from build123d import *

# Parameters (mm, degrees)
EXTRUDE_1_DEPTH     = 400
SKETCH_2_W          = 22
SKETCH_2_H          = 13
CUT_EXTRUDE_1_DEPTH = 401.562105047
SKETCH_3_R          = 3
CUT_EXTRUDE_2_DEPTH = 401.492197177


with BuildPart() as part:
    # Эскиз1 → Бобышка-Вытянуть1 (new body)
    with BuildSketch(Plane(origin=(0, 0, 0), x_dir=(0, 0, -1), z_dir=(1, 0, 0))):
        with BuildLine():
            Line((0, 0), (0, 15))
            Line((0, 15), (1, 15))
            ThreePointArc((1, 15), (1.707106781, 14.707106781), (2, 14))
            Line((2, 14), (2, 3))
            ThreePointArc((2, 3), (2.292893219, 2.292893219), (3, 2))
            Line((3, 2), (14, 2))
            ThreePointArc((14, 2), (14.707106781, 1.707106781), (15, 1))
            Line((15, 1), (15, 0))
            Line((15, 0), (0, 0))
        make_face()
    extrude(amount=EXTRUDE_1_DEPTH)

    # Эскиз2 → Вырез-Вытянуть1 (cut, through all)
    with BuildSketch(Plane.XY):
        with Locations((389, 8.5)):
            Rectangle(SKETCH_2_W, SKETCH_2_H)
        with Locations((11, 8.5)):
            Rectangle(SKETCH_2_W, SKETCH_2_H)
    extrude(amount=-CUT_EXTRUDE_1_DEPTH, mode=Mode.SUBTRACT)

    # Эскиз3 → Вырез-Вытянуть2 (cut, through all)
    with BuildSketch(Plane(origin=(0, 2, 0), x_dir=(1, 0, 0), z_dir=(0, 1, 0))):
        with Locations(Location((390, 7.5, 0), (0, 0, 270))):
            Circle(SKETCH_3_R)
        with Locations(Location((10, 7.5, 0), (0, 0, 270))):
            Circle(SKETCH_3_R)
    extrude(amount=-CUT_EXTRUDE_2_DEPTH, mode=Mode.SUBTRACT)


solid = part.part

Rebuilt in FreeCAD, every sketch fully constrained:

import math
import FreeCAD as App
import Part
import Sketcher

V = App.Vector

doc = App.newDocument("Part")
params = doc.addObject("Spreadsheet::Sheet", "Params")
for row, (alias, value) in enumerate([
    ("sketch1_radius", "1 mm"),
    ("sketch1_width", "15 mm"),
    ("sketch1_width2", "1 mm"),
    ("pad1_length", "400 mm"),
    ("sketch2_width", "22 mm"),
    ("sketch2_height", "13 mm"),
    ("sketch3_diameter", "6 mm"),
], start=1):
    params.set(f"A{row}", alias)
    params.set(f"B{row}", "=" + value)
    params.setAlias(f"B{row}", alias)

body = doc.addObject("PartDesign::Body", "Body")

sketch1 = body.newObject("Sketcher::SketchObject", "Sketch")
sketch1.AttachmentSupport = (doc.getObject("YZ_Plane"), [""])
sketch1.MapMode = "FlatFace"
sketch1.addGeometry(Part.LineSegment(V(15, 0, 0), V(0, 0, 0)), False)
sketch1.addGeometry(Part.LineSegment(V(0, 0, 0), V(0, -15, 0)), False)
sketch1.addGeometry(Part.LineSegment(V(0, -15, 0), V(1, -15, 0)), False)
sketch1.addGeometry(Part.ArcOfCircle(Part.Circle(V(1, -14, 0), V(0, 0, 1), 1), math.radians(-90), math.radians(0)), False)
sketch1.addGeometry(Part.LineSegment(V(2, -14, 0), V(2, -3, 0)), False)
sketch1.addGeometry(Part.ArcOfCircle(Part.Circle(V(3, -3, 0), V(0, 0, 1), 1), math.radians(90), math.radians(180)), False)
sketch1.addGeometry(Part.LineSegment(V(3, -2, 0), V(14, -2, 0)), False)
sketch1.addGeometry(Part.ArcOfCircle(Part.Circle(V(14, -1, 0), V(0, 0, 1), 1), math.radians(-90), math.radians(0)), False)
sketch1.addGeometry(Part.LineSegment(V(15, -1, 0), V(15, 0, 0)), False)
sketch1.addConstraint(Sketcher.Constraint("Coincident", 0, 2, 1, 1))
sketch1.addConstraint(Sketcher.Constraint("Coincident", 1, 2, 2, 1))
sketch1.addConstraint(Sketcher.Constraint("Tangent", 2, 2, 3, 1))
sketch1.addConstraint(Sketcher.Constraint("Tangent", 3, 2, 4, 1))
sketch1.addConstraint(Sketcher.Constraint("Tangent", 4, 2, 5, 2))
sketch1.addConstraint(Sketcher.Constraint("Tangent", 5, 1, 6, 1))
sketch1.addConstraint(Sketcher.Constraint("Tangent", 6, 2, 7, 1))
sketch1.addConstraint(Sketcher.Constraint("Tangent", 7, 2, 8, 1))
sketch1.addConstraint(Sketcher.Constraint("Coincident", 8, 2, 0, 1))
sketch1.addConstraint(Sketcher.Constraint("Horizontal", 0))
sketch1.addConstraint(Sketcher.Constraint("Vertical", 1))
sketch1.addConstraint(Sketcher.Constraint("Horizontal", 2))
sketch1.addConstraint(Sketcher.Constraint("Vertical", 4))
sketch1.addConstraint(Sketcher.Constraint("Horizontal", 6))
sketch1.addConstraint(Sketcher.Constraint("Vertical", 8))
sketch1.addConstraint(Sketcher.Constraint("Coincident", 0, 2, -1, 1))
sketch1.addConstraint(Sketcher.Constraint("Equal", 3, 5))
sketch1.addConstraint(Sketcher.Constraint("Equal", 5, 7))
sketch1.addConstraint(Sketcher.Constraint("Equal", 0, 1))
sketch1.addConstraint(Sketcher.Constraint("Equal", 6, 4))
sketch1.addConstraint(Sketcher.Constraint("Radius", 3, 1.0))
sketch1.addConstraint(Sketcher.Constraint("DistanceX", 0, 2, 0, 1, 15.0))
sketch1.addConstraint(Sketcher.Constraint("DistanceX", 2, 1, 2, 2, 1.0))
sketch1.setExpression("Constraints[20]", "Params.sketch1_radius")
sketch1.setExpression("Constraints[21]", "Params.sketch1_width")
sketch1.setExpression("Constraints[22]", "Params.sketch1_width2")
pad1 = body.newObject("PartDesign::Pad", "Pad")
pad1.Profile = sketch1
pad1.setExpression("Length", "Params.pad1_length")

sketch2 = body.newObject("Sketcher::SketchObject", "Sketch001")
sketch2.AttachmentSupport = (doc.getObject("XY_Plane"), [""])
sketch2.MapMode = "FlatFace"
sketch2.addGeometry(Part.LineSegment(V(378, 15, 0), V(378, 2, 0)), False)
sketch2.addGeometry(Part.LineSegment(V(378, 2, 0), V(400, 2, 0)), False)
sketch2.addGeometry(Part.LineSegment(V(400, 2, 0), V(400, 15, 0)), False)
sketch2.addGeometry(Part.LineSegment(V(400, 15, 0), V(378, 15, 0)), False)
sketch2.addGeometry(Part.LineSegment(V(0, 15, 0), V(0, 2, 0)), False)
sketch2.addGeometry(Part.LineSegment(V(0, 2, 0), V(22, 2, 0)), False)
sketch2.addGeometry(Part.LineSegment(V(22, 2, 0), V(22, 15, 0)), False)
sketch2.addGeometry(Part.LineSegment(V(22, 15, 0), V(0, 15, 0)), False)
sketch2.addConstraint(Sketcher.Constraint("Coincident", 0, 2, 1, 1))
sketch2.addConstraint(Sketcher.Constraint("Coincident", 1, 2, 2, 1))
sketch2.addConstraint(Sketcher.Constraint("Coincident", 2, 2, 3, 1))
sketch2.addConstraint(Sketcher.Constraint("Coincident", 3, 2, 0, 1))
sketch2.addConstraint(Sketcher.Constraint("Coincident", 4, 2, 5, 1))
sketch2.addConstraint(Sketcher.Constraint("Coincident", 5, 2, 6, 1))
sketch2.addConstraint(Sketcher.Constraint("Coincident", 6, 2, 7, 1))
sketch2.addConstraint(Sketcher.Constraint("Coincident", 7, 2, 4, 1))
sketch2.addConstraint(Sketcher.Constraint("Vertical", 0))
sketch2.addConstraint(Sketcher.Constraint("Horizontal", 1))
sketch2.addConstraint(Sketcher.Constraint("Vertical", 2))
sketch2.addConstraint(Sketcher.Constraint("Horizontal", 3))
sketch2.addConstraint(Sketcher.Constraint("Vertical", 4))
sketch2.addConstraint(Sketcher.Constraint("Horizontal", 5))
sketch2.addConstraint(Sketcher.Constraint("Vertical", 6))
sketch2.addConstraint(Sketcher.Constraint("Horizontal", 7))
sketch2.addConstraint(Sketcher.Constraint("PointOnObject", 4, 2, -2))
sketch2.addConstraint(Sketcher.Constraint("Horizontal", 1, 2, 4, 2))
sketch2.addConstraint(Sketcher.Constraint("Horizontal", 3, 2, 6, 2))
sketch2.addConstraint(Sketcher.Constraint("Equal", 3, 5))
sketch2.addConstraint(Sketcher.Constraint("DistanceX", 1, 1, 1, 2, 22.0))
sketch2.addConstraint(Sketcher.Constraint("DistanceY", 0, 2, 0, 1, 13.0))
sketch2.addConstraint(Sketcher.Constraint("DistanceX", -1, 1, 0, 2, 378.0))
sketch2.addConstraint(Sketcher.Constraint("DistanceY", -1, 1, 0, 2, 2.0))
sketch2.setExpression("Constraints[20]", "Params.sketch2_width")
sketch2.setExpression("Constraints[21]", "Params.sketch2_height")
pocket1 = body.newObject("PartDesign::Pocket", "Pocket")
pocket1.Profile = sketch2
pocket1.Type = "ThroughAll"

sketch3 = body.newObject("Sketcher::SketchObject", "Sketch002")
sketch3.AttachmentSupport = (doc.getObject("XZ_Plane"), [""])
sketch3.MapMode = "FlatFace"
sketch3.AttachmentOffset = App.Placement(V(0, 0, -2), App.Rotation())
sketch3.addGeometry(Part.Circle(V(390, -7.5, 0), V(0, 0, 1), 3), False)
sketch3.addGeometry(Part.Circle(V(10, -7.5, 0), V(0, 0, 1), 3), False)
sketch3.addConstraint(Sketcher.Constraint("Equal", 0, 1))
sketch3.addConstraint(Sketcher.Constraint("Horizontal", 0, 3, 1, 3))
sketch3.addConstraint(Sketcher.Constraint("Diameter", 0, 6.0))
sketch3.addConstraint(Sketcher.Constraint("DistanceX", -1, 1, 0, 3, 390.0))
sketch3.addConstraint(Sketcher.Constraint("DistanceX", -1, 1, 1, 3, 10.0))
sketch3.addConstraint(Sketcher.Constraint("DistanceY", 0, 3, -1, 1, 7.5))
sketch3.setExpression("Constraints[2]", "Params.sketch3_diameter")
pocket2 = body.newObject("PartDesign::Pocket", "Pocket001")
pocket2.Profile = sketch3
pocket2.Type = "ThroughAll"
pocket2.Reversed = True

doc.recompute()
